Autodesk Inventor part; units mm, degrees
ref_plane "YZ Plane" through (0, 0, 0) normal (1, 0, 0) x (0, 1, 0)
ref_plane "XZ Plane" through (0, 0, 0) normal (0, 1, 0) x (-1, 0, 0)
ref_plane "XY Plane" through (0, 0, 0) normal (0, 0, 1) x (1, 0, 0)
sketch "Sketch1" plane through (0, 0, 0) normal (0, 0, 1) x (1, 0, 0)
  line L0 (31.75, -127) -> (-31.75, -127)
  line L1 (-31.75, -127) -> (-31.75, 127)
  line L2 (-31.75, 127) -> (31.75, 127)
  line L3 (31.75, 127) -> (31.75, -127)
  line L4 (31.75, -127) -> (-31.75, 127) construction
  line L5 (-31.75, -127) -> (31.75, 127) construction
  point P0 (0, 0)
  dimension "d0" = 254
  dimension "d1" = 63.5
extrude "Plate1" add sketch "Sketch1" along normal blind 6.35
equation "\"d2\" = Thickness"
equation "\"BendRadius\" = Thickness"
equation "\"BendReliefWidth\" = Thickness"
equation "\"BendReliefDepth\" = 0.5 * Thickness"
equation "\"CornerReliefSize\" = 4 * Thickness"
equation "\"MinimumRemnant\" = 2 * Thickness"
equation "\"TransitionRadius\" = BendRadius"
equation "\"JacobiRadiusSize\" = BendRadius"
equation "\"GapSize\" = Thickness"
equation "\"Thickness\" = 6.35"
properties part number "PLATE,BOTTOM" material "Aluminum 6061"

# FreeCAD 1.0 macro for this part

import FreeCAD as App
import Part
import Sketcher
Q = App.Units.Quantity

doc = App.newDocument("Part")
body = doc.addObject("PartDesign::Body", "Body")

# Sketch on XY plane
sketch1 = body.newObject("Sketcher::SketchObject", "Sketch")
sketch1.AttachmentSupport = (doc.getObject("XY_Plane"), [""])
sketch1.MapMode = "FlatFace"
sketch1.addGeometry(Part.LineSegment(App.Vector(-32, -127, 0), App.Vector(32, -127, 0)), False)
sketch1.addGeometry(Part.LineSegment(App.Vector(32, -127, 0), App.Vector(32, 127, 0)), False)
sketch1.addGeometry(Part.LineSegment(App.Vector(32, 127, 0), App.Vector(-32, 127, 0)), False)
sketch1.addGeometry(Part.LineSegment(App.Vector(-32, 127, 0), App.Vector(-32, -127, 0)), False)
sketch1.addConstraint(Sketcher.Constraint("Coincident", 0, 2, 1, 1))
sketch1.addConstraint(Sketcher.Constraint("Coincident", 1, 2, 2, 1))
sketch1.addConstraint(Sketcher.Constraint("Coincident", 2, 2, 3, 1))
sketch1.addConstraint(Sketcher.Constraint("Coincident", 3, 2, 0, 1))
sketch1.addConstraint(Sketcher.Constraint("Horizontal", 0))
sketch1.addConstraint(Sketcher.Constraint("Vertical", 1))
sketch1.addConstraint(Sketcher.Constraint("Horizontal", 2))
sketch1.addConstraint(Sketcher.Constraint("Vertical", 3))
sketch1.addConstraint(Sketcher.Constraint("Symmetric", 0, 2, 2, 2, -1, 1))
sketch1.addConstraint(Sketcher.Constraint("DistanceY", 1, 1, 1, 2, Q("10 in")))
sketch1.addConstraint(Sketcher.Constraint("DistanceX", 0, 1, 0, 2, Q("2.5 in")))
pad1 = body.newObject("PartDesign::Pad", "Pad")
pad1.Profile = sketch1
pad1.Length = Q("0.25 in")

doc.recompute()
